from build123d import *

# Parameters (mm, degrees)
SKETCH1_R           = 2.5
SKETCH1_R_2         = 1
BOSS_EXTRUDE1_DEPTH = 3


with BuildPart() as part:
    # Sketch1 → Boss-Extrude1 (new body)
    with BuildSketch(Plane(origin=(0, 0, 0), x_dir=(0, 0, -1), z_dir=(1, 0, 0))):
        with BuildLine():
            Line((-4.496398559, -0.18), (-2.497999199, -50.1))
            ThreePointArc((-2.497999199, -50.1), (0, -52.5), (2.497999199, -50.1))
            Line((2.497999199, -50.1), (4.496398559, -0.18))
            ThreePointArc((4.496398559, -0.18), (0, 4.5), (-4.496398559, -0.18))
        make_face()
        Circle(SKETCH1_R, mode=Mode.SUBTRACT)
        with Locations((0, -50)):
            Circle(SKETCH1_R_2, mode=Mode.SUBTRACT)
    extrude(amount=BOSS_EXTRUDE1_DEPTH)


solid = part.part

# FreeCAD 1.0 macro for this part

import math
import FreeCAD as App
import Part
import Sketcher

doc = App.newDocument("Part")
body = doc.addObject("PartDesign::Body", "Body")

sketch1 = body.newObject("Sketcher::SketchObject", "Sketch")
sketch1.AttachmentSupport = (doc.getObject("YZ_Plane"), [""])
sketch1.MapMode = "FlatFace"
sketch1.addGeometry([
    Part.LineSegment(App.Vector(-0.18, 4.496399, 0), App.Vector(-50.1, 2.497999, 0)),
    Part.ArcOfCircle(Part.Circle(App.Vector(-50, 0, 0), App.Vector(0, 0, 1), 2.5), math.radians(92.292443), math.radians(267.707557)),
    Part.LineSegment(App.Vector(-50.1, -2.497999, 0), App.Vector(-0.18, -4.496399, 0)),
    Part.ArcOfCircle(Part.Circle(App.Vector(0, 0, 0), App.Vector(0, 0, 1), 4.5), math.radians(-92.292443), math.radians(92.292443)),
    Part.Circle(App.Vector(-50, 0, 0), App.Vector(0, 0, 1), 1),
    Part.Circle(App.Vector(0, 0, 0), App.Vector(0, 0, 1), 2.5),
], False)
sketch1.addConstraint([
    Sketcher.Constraint("Tangent", 0, 2, 1, 1),
    Sketcher.Constraint("Tangent", 1, 2, 2, 1),
    Sketcher.Constraint("Tangent", 2, 2, 3, 1),
    Sketcher.Constraint("Tangent", 3, 2, 0, 1),
    Sketcher.Constraint("Coincident", 3, 3, -1, 1),
    Sketcher.Constraint("Coincident", 5, 3, -1, 1),
    Sketcher.Constraint("Coincident", 4, 3, 1, 3),
    Sketcher.Constraint("Equal", 1, 5),
    Sketcher.Constraint("PointOnObject", 1, 3, -1),
    Sketcher.Constraint("Diameter", 4, 2.0),
    Sketcher.Constraint("Diameter", 5, 5.0),
    Sketcher.Constraint("Radius", 3, 4.5),
    Sketcher.Constraint("DistanceX", 1, 3, -1, 1, 50.0),
])
pad1 = body.newObject("PartDesign::Pad", "Pad")
pad1.Profile = sketch1
pad1.Length = 3

doc.recompute()
